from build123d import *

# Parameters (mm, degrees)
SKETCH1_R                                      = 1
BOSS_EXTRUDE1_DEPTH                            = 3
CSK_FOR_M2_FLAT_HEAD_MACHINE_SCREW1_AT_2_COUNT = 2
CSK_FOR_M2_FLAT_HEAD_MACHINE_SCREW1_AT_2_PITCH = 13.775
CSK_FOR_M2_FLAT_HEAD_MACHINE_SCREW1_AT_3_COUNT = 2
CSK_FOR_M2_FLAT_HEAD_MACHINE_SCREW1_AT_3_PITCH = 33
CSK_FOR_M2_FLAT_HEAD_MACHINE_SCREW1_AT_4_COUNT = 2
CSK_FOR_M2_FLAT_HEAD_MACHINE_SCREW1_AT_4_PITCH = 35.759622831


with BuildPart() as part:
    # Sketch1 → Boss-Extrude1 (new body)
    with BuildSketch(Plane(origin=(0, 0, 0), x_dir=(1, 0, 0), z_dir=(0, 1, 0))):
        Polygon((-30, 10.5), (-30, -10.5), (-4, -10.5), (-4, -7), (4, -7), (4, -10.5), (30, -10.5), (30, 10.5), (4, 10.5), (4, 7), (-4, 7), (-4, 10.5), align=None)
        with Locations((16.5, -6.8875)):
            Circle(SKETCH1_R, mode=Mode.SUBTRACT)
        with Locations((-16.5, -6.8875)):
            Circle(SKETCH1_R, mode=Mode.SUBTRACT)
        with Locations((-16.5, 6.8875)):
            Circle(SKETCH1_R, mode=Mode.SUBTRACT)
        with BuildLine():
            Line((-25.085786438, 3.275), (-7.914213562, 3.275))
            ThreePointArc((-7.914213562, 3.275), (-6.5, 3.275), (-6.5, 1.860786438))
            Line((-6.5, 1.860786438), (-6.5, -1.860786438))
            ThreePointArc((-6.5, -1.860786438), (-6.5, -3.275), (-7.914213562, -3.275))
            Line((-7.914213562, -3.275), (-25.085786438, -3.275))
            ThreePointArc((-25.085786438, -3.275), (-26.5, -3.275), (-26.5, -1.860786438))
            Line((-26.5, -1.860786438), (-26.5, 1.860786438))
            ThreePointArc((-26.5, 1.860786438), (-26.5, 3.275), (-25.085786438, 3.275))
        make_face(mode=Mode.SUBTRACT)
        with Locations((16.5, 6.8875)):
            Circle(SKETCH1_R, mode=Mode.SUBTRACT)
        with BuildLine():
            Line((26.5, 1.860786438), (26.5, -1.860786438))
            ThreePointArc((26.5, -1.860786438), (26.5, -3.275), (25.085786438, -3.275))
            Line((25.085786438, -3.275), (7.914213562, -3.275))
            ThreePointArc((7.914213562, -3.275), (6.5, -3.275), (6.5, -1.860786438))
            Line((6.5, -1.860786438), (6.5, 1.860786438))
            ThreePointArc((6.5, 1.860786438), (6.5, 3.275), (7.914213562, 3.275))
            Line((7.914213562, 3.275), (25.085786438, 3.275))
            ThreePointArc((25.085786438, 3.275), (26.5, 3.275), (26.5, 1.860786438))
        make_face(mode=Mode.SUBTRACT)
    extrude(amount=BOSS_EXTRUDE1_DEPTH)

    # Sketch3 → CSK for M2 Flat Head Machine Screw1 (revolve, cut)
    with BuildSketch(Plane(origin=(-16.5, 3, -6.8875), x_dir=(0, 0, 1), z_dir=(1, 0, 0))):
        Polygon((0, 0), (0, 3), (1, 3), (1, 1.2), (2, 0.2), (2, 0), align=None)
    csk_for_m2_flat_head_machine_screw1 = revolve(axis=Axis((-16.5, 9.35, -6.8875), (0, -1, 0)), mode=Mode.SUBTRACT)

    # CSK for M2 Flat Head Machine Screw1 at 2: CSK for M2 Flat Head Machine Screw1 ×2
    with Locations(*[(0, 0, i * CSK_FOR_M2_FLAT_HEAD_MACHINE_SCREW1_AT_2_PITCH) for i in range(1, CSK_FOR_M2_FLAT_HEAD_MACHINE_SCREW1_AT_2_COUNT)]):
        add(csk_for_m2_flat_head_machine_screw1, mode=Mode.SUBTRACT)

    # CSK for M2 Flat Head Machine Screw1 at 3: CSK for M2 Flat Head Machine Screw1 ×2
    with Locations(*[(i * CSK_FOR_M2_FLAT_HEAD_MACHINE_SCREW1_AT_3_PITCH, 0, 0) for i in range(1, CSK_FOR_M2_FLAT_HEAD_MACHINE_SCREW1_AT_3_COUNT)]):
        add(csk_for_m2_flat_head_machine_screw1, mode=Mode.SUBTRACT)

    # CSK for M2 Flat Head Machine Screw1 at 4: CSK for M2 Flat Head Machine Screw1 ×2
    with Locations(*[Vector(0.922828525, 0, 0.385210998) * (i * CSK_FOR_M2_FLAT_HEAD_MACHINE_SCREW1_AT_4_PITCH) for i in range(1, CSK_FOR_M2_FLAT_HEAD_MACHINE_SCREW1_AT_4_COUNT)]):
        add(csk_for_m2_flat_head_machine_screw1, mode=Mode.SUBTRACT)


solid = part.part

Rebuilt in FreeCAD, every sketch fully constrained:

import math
import FreeCAD as App
import Part
import Sketcher
from FreeCAD import Vector
Q = App.Units.Quantity

doc = App.newDocument("Part")
params = doc.addObject("Spreadsheet::Sheet", "Params")
for row, (alias, value) in enumerate([
    ("sketch1_diameter", "2 mm"),
    ("sketch1_width", "26 mm"),
    ("sketch1_width2", "8 mm"),
    ("sketch1_height", "21 mm"),
    ("sketch1_height2", "3.5 mm"),
    ("pad1_length", "3 mm"),
    ("sketch2_width", "3 mm"),
    ("sketch2_height", "2 mm"),
    ("sketch2_height2", "1 mm"),
    ("sketch2_width2", "0.2 mm"),
    ("groove_angle", "360 deg"),
    ("linearpattern_pitch", "13.775 mm"),
    ("linearpattern2_pitch", "33 mm"),
    ("linearpattern3_pitch", "35.759623 mm"),
], start=1):
    params.set(f"A{row}", alias)
    params.set(f"B{row}", "=" + value)
    params.setAlias(f"B{row}", alias)

body = doc.addObject("PartDesign::Body", "Body")

sketch1 = body.newObject("Sketcher::SketchObject", "Sketch")
sketch1.AttachmentSupport = (doc.getObject("XZ_Plane"), [""])
sketch1.MapMode = "FlatFace"
sketch1.addGeometry([
    Part.LineSegment(Vector(-30, -10.5, 0), Vector(-30, 10.5, 0)),
    Part.LineSegment(Vector(-30, 10.5, 0), Vector(-4, 10.5, 0)),
    Part.LineSegment(Vector(-4, 10.5, 0), Vector(-4, 7, 0)),
    Part.LineSegment(Vector(-4, 7, 0), Vector(4, 7, 0)),
    Part.LineSegment(Vector(4, 7, 0), Vector(4, 10.5, 0)),
    Part.LineSegment(Vector(4, 10.5, 0), Vector(30, 10.5, 0)),
    Part.LineSegment(Vector(30, 10.5, 0), Vector(30, -10.5, 0)),
    Part.LineSegment(Vector(30, -10.5, 0), Vector(4, -10.5, 0)),
    Part.LineSegment(Vector(4, -10.5, 0), Vector(4, -7, 0)),
    Part.LineSegment(Vector(4, -7, 0), Vector(-4, -7, 0)),
    Part.LineSegment(Vector(-4, -7, 0), Vector(-4, -10.5, 0)),
    Part.LineSegment(Vector(-4, -10.5, 0), Vector(-30, -10.5, 0)),
    Part.Circle(Vector(-16.5, 6.8875, 0), Vector(0, 0, 1), 1),
    Part.Circle(Vector(16.5, 6.8875, 0), Vector(0, 0, 1), 1),
    Part.ArcOfCircle(Part.Circle(Vector(-25.792893, -2.567893, 0), Vector(0, 0, 1), 1), math.radians(135), math.radians(315)),
    Part.LineSegment(Vector(-25.085786, -3.275, 0), Vector(-7.914214, -3.275, 0)),
    Part.ArcOfCircle(Part.Circle(Vector(-7.207107, -2.567893, 0), Vector(0, 0, 1), 1), math.radians(-135), math.radians(45)),
    Part.LineSegment(Vector(-6.5, -1.860786, 0), Vector(-6.5, 1.860786, 0)),
    Part.ArcOfCircle(Part.Circle(Vector(-7.207107, 2.567893, 0), Vector(0, 0, 1), 1), math.radians(-45), math.radians(135)),
    Part.LineSegment(Vector(-7.914214, 3.275, 0), Vector(-25.085786, 3.275, 0)),
    Part.ArcOfCircle(Part.Circle(Vector(-25.792893, 2.567893, 0), Vector(0, 0, 1), 1), math.radians(45), math.radians(225)),
    Part.LineSegment(Vector(-26.5, 1.860786, 0), Vector(-26.5, -1.860786, 0)),
    Part.Circle(Vector(-16.5, -6.8875, 0), Vector(0, 0, 1), 1),
    Part.ArcOfCircle(Part.Circle(Vector(25.792893, -2.567893, 0), Vector(0, 0, 1), 1), math.radians(-135), math.radians(45)),
    Part.LineSegment(Vector(26.5, -1.860786, 0), Vector(26.5, 1.860786, 0)),
    Part.ArcOfCircle(Part.Circle(Vector(25.792893, 2.567893, 0), Vector(0, 0, 1), 1), math.radians(-45), math.radians(135)),
    Part.LineSegment(Vector(25.085786, 3.275, 0), Vector(7.914214, 3.275, 0)),
    Part.ArcOfCircle(Part.Circle(Vector(7.207107, 2.567893, 0), Vector(0, 0, 1), 1), math.radians(45), math.radians(225)),
    Part.LineSegment(Vector(6.5, 1.860786, 0), Vector(6.5, -1.860786, 0)),
    Part.ArcOfCircle(Part.Circle(Vector(7.207107, -2.567893, 0), Vector(0, 0, 1), 1), math.radians(135), math.radians(315)),
    Part.LineSegment(Vector(7.914214, -3.275, 0), Vector(25.085786, -3.275, 0)),
    Part.Circle(Vector(16.5, -6.8875, 0), Vector(0, 0, 1), 1),
], False)
sketch1.addConstraint([
    Sketcher.Constraint("Coincident", 0, 2, 1, 1),
    Sketcher.Constraint("Coincident", 1, 2, 2, 1),
    Sketcher.Constraint("Coincident", 2, 2, 3, 1),
    Sketcher.Constraint("Coincident", 3, 2, 4, 1),
    Sketcher.Constraint("Coincident", 4, 2, 5, 1),
    Sketcher.Constraint("Coincident", 5, 2, 6, 1),
    Sketcher.Constraint("Coincident", 6, 2, 7, 1),
    Sketcher.Constraint("Coincident", 7, 2, 8, 1),
    Sketcher.Constraint("Coincident", 8, 2, 9, 1),
    Sketcher.Constraint("Coincident", 9, 2, 10, 1),
    Sketcher.Constraint("Coincident", 10, 2, 11, 1),
    Sketcher.Constraint("Coincident", 11, 2, 0, 1),
    Sketcher.Constraint("Coincident", 14, 2, 15, 1),
    Sketcher.Constraint("Coincident", 15, 2, 16, 1),
    Sketcher.Constraint("Coincident", 16, 2, 17, 1),
    Sketcher.Constraint("Coincident", 17, 2, 18, 1),
    Sketcher.Constraint("Coincident", 18, 2, 19, 1),
    Sketcher.Constraint("Coincident", 19, 2, 20, 1),
    Sketcher.Constraint("Coincident", 20, 2, 21, 1),
    Sketcher.Constraint("Coincident", 21, 2, 14, 1),
    Sketcher.Constraint("Coincident", 23, 2, 24, 1),
    Sketcher.Constraint("Coincident", 24, 2, 25, 1),
    Sketcher.Constraint("Coincident", 25, 2, 26, 1),
    Sketcher.Constraint("Coincident", 26, 2, 27, 1),
    Sketcher.Constraint("Coincident", 27, 2, 28, 1),
    Sketcher.Constraint("Coincident", 28, 2, 29, 1),
    Sketcher.Constraint("Coincident", 29, 2, 30, 1),
    Sketcher.Constraint("Coincident", 30, 2, 23, 1),
    Sketcher.Constraint("Vertical", 0),
    Sketcher.Constraint("Horizontal", 1),
    Sketcher.Constraint("Vertical", 2),
    Sketcher.Constraint("Horizontal", 3),
    Sketcher.Constraint("Vertical", 4),
    Sketcher.Constraint("Horizontal", 5),
    Sketcher.Constraint("Vertical", 6),
    Sketcher.Constraint("Horizontal", 7),
    Sketcher.Constraint("Vertical", 8),
    Sketcher.Constraint("Horizontal", 9),
    Sketcher.Constraint("Vertical", 10),
    Sketcher.Constraint("Horizontal", 11),
    Sketcher.Constraint("Horizontal", 15),
    Sketcher.Constraint("Vertical", 17),
    Sketcher.Constraint("Horizontal", 19),
    Sketcher.Constraint("Vertical", 21),
    Sketcher.Constraint("Vertical", 24),
    Sketcher.Constraint("Horizontal", 26),
    Sketcher.Constraint("Vertical", 28),
    Sketcher.Constraint("Horizontal", 30),
    Sketcher.Constraint("Equal", 12, 13),
    Sketcher.Constraint("Equal", 13, 14),
    Sketcher.Constraint("Equal", 14, 16),
    Sketcher.Constraint("Equal", 16, 18),
    Sketcher.Constraint("Equal", 18, 20),
    Sketcher.Constraint("Equal", 20, 22),
    Sketcher.Constraint("Equal", 22, 23),
    Sketcher.Constraint("Equal", 23, 25),
    Sketcher.Constraint("Equal", 25, 27),
    Sketcher.Constraint("Equal", 27, 29),
    Sketcher.Constraint("Equal", 29, 31),
    Sketcher.Constraint("Symmetric", 13, 3, 22, 3, -1, 1),
    Sketcher.Constraint("Symmetric", 20, 3, 23, 3, -1, 1),
    Sketcher.Constraint("Symmetric", 14, 3, 25, 3, -1, 1),
    Sketcher.Constraint("Symmetric", 16, 3, 27, 3, -1, 1),
    Sketcher.Constraint("Symmetric", 18, 3, 29, 3, -1, 1),
    Sketcher.Constraint("Symmetric", 12, 3, 31, 3, -1, 1),
    Sketcher.Constraint("Symmetric", 0, 2, 6, 2, -1, 1),
    Sketcher.Constraint("Symmetric", 2, 2, 8, 2, -1, 1),
    Sketcher.Constraint("Symmetric", 4, 2, 10, 2, -1, 1),
    Sketcher.Constraint("Symmetric", 12, 3, 13, 3, -2),
    Sketcher.Constraint("Symmetric", 14, 3, 23, 3, -2),
    Sketcher.Constraint("Symmetric", 18, 3, 27, 3, -2),
    Sketcher.Constraint("Symmetric", 1, 2, 4, 2, -2),
    Sketcher.Constraint("Horizontal", 14, 3, 16, 3),
    Sketcher.Constraint("Horizontal", 17, 2, 20, 2),
    Sketcher.Constraint("Horizontal", 21, 2, 23, 2),
    Sketcher.Constraint("Horizontal", 19, 2, 25, 2),
    Sketcher.Constraint("Horizontal", 24, 2, 27, 2),
    Sketcher.Constraint("Horizontal", 15, 2, 29, 2),
    Sketcher.Constraint("Vertical", 15, 2, 18, 2),
    Sketcher.Constraint("Diameter", 12, Q("2 mm")),
    Sketcher.Constraint("DistanceX", 1, 1, 1, 2, Q("26 mm")),
    Sketcher.Constraint("DistanceX", 3, 1, 3, 2, Q("8 mm")),
    Sketcher.Constraint("DistanceY", 0, 1, 0, 2, Q("21 mm")),
    Sketcher.Constraint("DistanceY", 2, 2, 2, 1, Q("3.5 mm")),
    Sketcher.Constraint("DistanceX", 12, 3, 13, 3, Q("33 mm")),
    Sketcher.Constraint("DistanceX", 16, 3, 23, 3, Q("33 mm")),
    Sketcher.Constraint("DistanceX", 31, 3, 23, 2, Q("10 mm")),
    Sketcher.Constraint("DistanceY", 14, 2, 19, 2, Q("6.55 mm")),
    Sketcher.Constraint("DistanceY", 22, 3, 12, 3, Q("13.775 mm")),
    Sketcher.Constraint("DistanceX", 15, 1, 15, 2, Q("17.171573 mm")),
    Sketcher.Constraint("DistanceY", 16, 2, 18, 3, Q("4.42868 mm")),
])
sketch1.setExpression("Constraints[79]", "Params.sketch1_diameter")
sketch1.setExpression("Constraints[80]", "Params.sketch1_width")
sketch1.setExpression("Constraints[81]", "Params.sketch1_width2")
sketch1.setExpression("Constraints[82]", "Params.sketch1_height")
sketch1.setExpression("Constraints[83]", "Params.sketch1_height2")
pad1 = body.newObject("PartDesign::Pad", "Pad")
pad1.Profile = sketch1
pad1.setExpression("Length", "Params.pad1_length")
pad1.Reversed = True

sketch2 = body.newObject("Sketcher::SketchObject", "Sketch001")
sketch2.AttachmentSupport = (doc.getObject("YZ_Plane"), [""])
sketch2.MapMode = "FlatFace"
sketch2.AttachmentOffset = App.Placement(Vector(0, 0, -16.5), App.Rotation())
sketch2.addGeometry([
    Part.LineSegment(Vector(0, -6.8875, 0), Vector(3, -6.8875, 0)),
    Part.LineSegment(Vector(3, -6.8875, 0), Vector(3, -4.8875, 0)),
    Part.LineSegment(Vector(3, -4.8875, 0), Vector(2.8, -4.8875, 0)),
    Part.LineSegment(Vector(2.8, -4.8875, 0), Vector(1.8, -5.8875, 0)),
    Part.LineSegment(Vector(1.8, -5.8875, 0), Vector(0, -5.8875, 0)),
    Part.LineSegment(Vector(0, -5.8875, 0), Vector(0, -6.8875, 0)),
], False)
sketch2.addGeometry(Part.LineSegment(Vector(3, -6.8875, 0), Vector(0, -6.8875, 0)), True)
sketch2.addConstraint([
    Sketcher.Constraint("Coincident", 0, 2, 1, 1),
    Sketcher.Constraint("Coincident", 1, 2, 2, 1),
    Sketcher.Constraint("Coincident", 2, 2, 3, 1),
    Sketcher.Constraint("Coincident", 3, 2, 4, 1),
    Sketcher.Constraint("Coincident", 4, 2, 5, 1),
    Sketcher.Constraint("Coincident", 5, 2, 0, 1),
    Sketcher.Constraint("Horizontal", 0),
    Sketcher.Constraint("Vertical", 1),
    Sketcher.Constraint("Horizontal", 2),
    Sketcher.Constraint("Horizontal", 4),
    Sketcher.Constraint("Vertical", 5),
    Sketcher.Constraint("Horizontal", 6),
    Sketcher.Constraint("Coincident", 6, 1, 0, 2),
    Sketcher.Constraint("PointOnObject", 4, 2, -2),
    Sketcher.Constraint("PointOnObject", 6, 2, -2),
    Sketcher.Constraint("DistanceX", 0, 1, 0, 2, Q("3 mm")),
    Sketcher.Constraint("DistanceY", 1, 1, 1, 2, Q("2 mm")),
    Sketcher.Constraint("DistanceY", 5, 2, 5, 1, Q("1 mm")),
    Sketcher.Constraint("Angle", 3, Q("-135 deg")),
    Sketcher.Constraint("DistanceX", 2, 2, 2, 1, Q("0.2 mm")),
    Sketcher.Constraint("DistanceY", 0, 2, -1, 1, Q("6.8875 mm")),
])
sketch2.setExpression("Constraints[15]", "Params.sketch2_width")
sketch2.setExpression("Constraints[16]", "Params.sketch2_height")
sketch2.setExpression("Constraints[17]", "Params.sketch2_height2")
sketch2.setExpression("Constraints[19]", "Params.sketch2_width2")
groove = body.newObject("PartDesign::Groove", "Groove")
groove.Profile = sketch2
groove.ReferenceAxis = (sketch2, ["Axis0"])
groove.setExpression("Angle", "Params.groove_angle")
doc.recompute()

linearpattern = body.newObject("PartDesign::LinearPattern", "LinearPattern")
linearpattern.Originals = [groove]
linearpattern.Direction = (doc.getObject("Z_Axis"), [""])
linearpattern.Mode = "offset"
linearpattern.setExpression("Offset", "Params.linearpattern_pitch")
linearpattern.Occurrences = 2
body.Tip = linearpattern
doc.recompute()

linearpattern2 = body.newObject("PartDesign::LinearPattern", "LinearPattern001")
linearpattern2.Originals = [groove]
linearpattern2.Direction = (doc.getObject("X_Axis"), [""])
linearpattern2.Mode = "offset"
linearpattern2.setExpression("Offset", "Params.linearpattern2_pitch")
linearpattern2.Occurrences = 2
body.Tip = linearpattern2
doc.recompute()

datumline = body.newObject("PartDesign::Line", "DatumLine")
datumline.Placement = App.Placement(Vector(0, 0, 0), App.Rotation(Vector(0, 0, 1), Vector(0.922828525, 0, 0.385210998)))
linearpattern3 = body.newObject("PartDesign::LinearPattern", "LinearPattern002")
linearpattern3.Originals = [groove]
linearpattern3.Direction = (datumline, [""])
linearpattern3.Mode = "offset"
linearpattern3.setExpression("Offset", "Params.linearpattern3_pitch")
linearpattern3.Occurrences = 2
body.Tip = linearpattern3

doc.recompute()
